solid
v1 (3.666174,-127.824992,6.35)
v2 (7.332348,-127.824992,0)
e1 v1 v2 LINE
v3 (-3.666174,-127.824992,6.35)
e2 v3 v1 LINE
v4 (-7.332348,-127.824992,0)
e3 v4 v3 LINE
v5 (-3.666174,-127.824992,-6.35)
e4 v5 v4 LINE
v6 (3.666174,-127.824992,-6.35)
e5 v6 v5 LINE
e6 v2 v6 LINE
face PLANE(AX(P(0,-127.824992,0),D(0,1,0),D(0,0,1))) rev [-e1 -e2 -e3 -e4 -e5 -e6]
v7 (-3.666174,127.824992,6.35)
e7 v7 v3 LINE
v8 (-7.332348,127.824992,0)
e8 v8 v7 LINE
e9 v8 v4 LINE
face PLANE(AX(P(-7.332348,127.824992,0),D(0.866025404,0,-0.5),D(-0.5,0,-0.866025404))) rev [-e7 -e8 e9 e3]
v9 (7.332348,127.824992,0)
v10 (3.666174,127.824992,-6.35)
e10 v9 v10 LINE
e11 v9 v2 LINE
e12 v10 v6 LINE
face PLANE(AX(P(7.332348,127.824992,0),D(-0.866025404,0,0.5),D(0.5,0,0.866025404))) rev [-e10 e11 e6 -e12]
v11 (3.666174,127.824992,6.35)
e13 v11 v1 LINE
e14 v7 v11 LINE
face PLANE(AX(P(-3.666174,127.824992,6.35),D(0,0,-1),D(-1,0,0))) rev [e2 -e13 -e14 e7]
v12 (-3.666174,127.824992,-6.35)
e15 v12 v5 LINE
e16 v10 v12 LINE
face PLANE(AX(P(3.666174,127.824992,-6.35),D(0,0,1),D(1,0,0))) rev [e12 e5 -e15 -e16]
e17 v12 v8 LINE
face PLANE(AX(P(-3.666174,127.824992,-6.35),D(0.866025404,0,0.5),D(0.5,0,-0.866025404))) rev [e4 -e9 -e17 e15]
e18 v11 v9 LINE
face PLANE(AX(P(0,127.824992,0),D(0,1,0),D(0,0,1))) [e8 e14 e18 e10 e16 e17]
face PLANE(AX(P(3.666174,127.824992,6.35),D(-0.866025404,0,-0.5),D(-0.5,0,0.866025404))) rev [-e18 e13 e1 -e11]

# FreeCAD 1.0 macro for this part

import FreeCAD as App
import Part
import Sketcher

V = App.Vector
Q = App.Units.Quantity


def add_polygon(sketch, points):
    """Adds a closed chain of lines whose ends are joined by coincident constraints."""
    first, n = sketch.GeometryCount, len(points)
    for a, b in zip(points, points[1:] + points[:1]):
        sketch.addGeometry(Part.LineSegment(App.Vector(*a, 0), App.Vector(*b, 0)), False)
    for i in range(n):
        sketch.addConstraint(Sketcher.Constraint("Coincident", first + i, 2, first + (i + 1) % n, 1))

doc = App.newDocument("Part")
body = doc.addObject("PartDesign::Body", "Body")

# Sketch on XZ plane
sketch1 = body.newObject("Sketcher::SketchObject", "Sketch")
sketch1.AttachmentSupport = (doc.getObject("XZ_Plane"), [""])
sketch1.MapMode = "FlatFace"
add_polygon(sketch1, [(7.332348, 0), (3.666174, -6.35), (-3.666174, -6.35), (-7.332348, 0), (-3.666174, 6.35), (3.666174, 6.35)])  # lines 0-5
sketch1.addConstraint([
    Sketcher.Constraint("Horizontal", 1),
    Sketcher.Constraint("Horizontal", 4),
    Sketcher.Constraint("Symmetric", 0, 2, 3, 2, -1, 1),
    Sketcher.Constraint("Symmetric", 2, 2, 5, 2, -1, 1),
    Sketcher.Constraint("PointOnObject", 2, 2, -1),
    Sketcher.Constraint("Parallel", 2, 5),
    Sketcher.Constraint("Vertical", 1, 2, 3, 2),
    Sketcher.Constraint("Angle", 0, Q("-120 deg")),
    Sketcher.Constraint("DistanceY", 1, 2, 3, 2, Q("12.7 mm")),
    Sketcher.Constraint("DistanceX", 1, 2, 1, 1, Q("7.332348 mm")),
])
pad1 = body.newObject("PartDesign::Pad", "Pad")
pad1.Profile = sketch1
pad1.Length = 255.649984
pad1.Midplane = True

doc.recompute()
